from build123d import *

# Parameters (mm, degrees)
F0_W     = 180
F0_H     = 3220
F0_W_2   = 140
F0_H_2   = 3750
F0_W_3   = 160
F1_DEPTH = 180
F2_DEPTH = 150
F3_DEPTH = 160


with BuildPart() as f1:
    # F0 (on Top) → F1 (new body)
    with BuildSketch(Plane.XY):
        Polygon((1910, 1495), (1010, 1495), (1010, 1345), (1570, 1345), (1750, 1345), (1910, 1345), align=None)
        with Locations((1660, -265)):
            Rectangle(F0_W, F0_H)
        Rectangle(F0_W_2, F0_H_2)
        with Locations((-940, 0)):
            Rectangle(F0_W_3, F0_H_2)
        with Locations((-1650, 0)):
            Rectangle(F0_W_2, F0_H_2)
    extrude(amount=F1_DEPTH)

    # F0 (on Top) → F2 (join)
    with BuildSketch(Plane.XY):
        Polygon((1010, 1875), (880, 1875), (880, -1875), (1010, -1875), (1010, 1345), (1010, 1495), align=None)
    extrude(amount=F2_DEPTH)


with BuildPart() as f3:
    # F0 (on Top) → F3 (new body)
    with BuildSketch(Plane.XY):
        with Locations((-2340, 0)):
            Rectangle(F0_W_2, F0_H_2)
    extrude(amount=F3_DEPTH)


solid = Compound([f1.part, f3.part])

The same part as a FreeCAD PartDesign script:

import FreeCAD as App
import Part
import Sketcher
from FreeCAD import Vector

doc = App.newDocument("Part")
body = doc.addObject("PartDesign::Body", "Body")
body.AllowCompound = True

sketch1 = body.newObject("Sketcher::SketchObject", "Sketch")
sketch1.AttachmentSupport = (doc.getObject("XY_Plane"), [""])
sketch1.MapMode = "FlatFace"
sketch1.addGeometry(Part.LineSegment(Vector(1910, 1495, 0), Vector(1010, 1495, 0)), False)
sketch1.addGeometry(Part.LineSegment(Vector(1010, 1495, 0), Vector(1010, 1345, 0)), False)
sketch1.addGeometry(Part.LineSegment(Vector(1010, 1345, 0), Vector(1570, 1345, 0)), False)
sketch1.addGeometry(Part.LineSegment(Vector(1570, 1345, 0), Vector(1570, -1875, 0)), False)
sketch1.addGeometry(Part.LineSegment(Vector(1570, -1875, 0), Vector(1750, -1875, 0)), False)
sketch1.addGeometry(Part.LineSegment(Vector(1750, -1875, 0), Vector(1750, 1345, 0)), False)
sketch1.addGeometry(Part.LineSegment(Vector(1750, 1345, 0), Vector(1910, 1345, 0)), False)
sketch1.addGeometry(Part.LineSegment(Vector(1910, 1345, 0), Vector(1910, 1495, 0)), False)
sketch1.addGeometry(Part.LineSegment(Vector(-70, 1875, 0), Vector(-70, -1875, 0)), False)
sketch1.addGeometry(Part.LineSegment(Vector(-70, -1875, 0), Vector(70, -1875, 0)), False)
sketch1.addGeometry(Part.LineSegment(Vector(70, -1875, 0), Vector(70, 1875, 0)), False)
sketch1.addGeometry(Part.LineSegment(Vector(70, 1875, 0), Vector(-70, 1875, 0)), False)
sketch1.addGeometry(Part.LineSegment(Vector(-1020, 1875, 0), Vector(-1020, -1875, 0)), False)
sketch1.addGeometry(Part.LineSegment(Vector(-1020, -1875, 0), Vector(-860, -1875, 0)), False)
sketch1.addGeometry(Part.LineSegment(Vector(-860, -1875, 0), Vector(-860, 1875, 0)), False)
sketch1.addGeometry(Part.LineSegment(Vector(-860, 1875, 0), Vector(-1020, 1875, 0)), False)
sketch1.addGeometry(Part.LineSegment(Vector(-1720, 1875, 0), Vector(-1720, -1875, 0)), False)
sketch1.addGeometry(Part.LineSegment(Vector(-1720, -1875, 0), Vector(-1580, -1875, 0)), False)
sketch1.addGeometry(Part.LineSegment(Vector(-1580, -1875, 0), Vector(-1580, 1875, 0)), False)
sketch1.addGeometry(Part.LineSegment(Vector(-1580, 1875, 0), Vector(-1720, 1875, 0)), False)
sketch1.addConstraint(Sketcher.Constraint("Coincident", 0, 2, 1, 1))
sketch1.addConstraint(Sketcher.Constraint("Coincident", 1, 2, 2, 1))
sketch1.addConstraint(Sketcher.Constraint("Coincident", 2, 2, 3, 1))
sketch1.addConstraint(Sketcher.Constraint("Coincident", 3, 2, 4, 1))
sketch1.addConstraint(Sketcher.Constraint("Coincident", 4, 2, 5, 1))
sketch1.addConstraint(Sketcher.Constraint("Coincident", 5, 2, 6, 1))
sketch1.addConstraint(Sketcher.Constraint("Coincident", 6, 2, 7, 1))
sketch1.addConstraint(Sketcher.Constraint("Coincident", 7, 2, 0, 1))
sketch1.addConstraint(Sketcher.Constraint("Coincident", 8, 2, 9, 1))
sketch1.addConstraint(Sketcher.Constraint("Coincident", 9, 2, 10, 1))
sketch1.addConstraint(Sketcher.Constraint("Coincident", 10, 2, 11, 1))
sketch1.addConstraint(Sketcher.Constraint("Coincident", 11, 2, 8, 1))
sketch1.addConstraint(Sketcher.Constraint("Coincident", 12, 2, 13, 1))
sketch1.addConstraint(Sketcher.Constraint("Coincident", 13, 2, 14, 1))
sketch1.addConstraint(Sketcher.Constraint("Coincident", 14, 2, 15, 1))
sketch1.addConstraint(Sketcher.Constraint("Coincident", 15, 2, 12, 1))
sketch1.addConstraint(Sketcher.Constraint("Coincident", 16, 2, 17, 1))
sketch1.addConstraint(Sketcher.Constraint("Coincident", 17, 2, 18, 1))
sketch1.addConstraint(Sketcher.Constraint("Coincident", 18, 2, 19, 1))
sketch1.addConstraint(Sketcher.Constraint("Coincident", 19, 2, 16, 1))
sketch1.addConstraint(Sketcher.Constraint("Horizontal", 0))
sketch1.addConstraint(Sketcher.Constraint("Vertical", 1))
sketch1.addConstraint(Sketcher.Constraint("Horizontal", 2))
sketch1.addConstraint(Sketcher.Constraint("Vertical", 3))
sketch1.addConstraint(Sketcher.Constraint("Horizontal", 4))
sketch1.addConstraint(Sketcher.Constraint("Vertical", 5))
sketch1.addConstraint(Sketcher.Constraint("Horizontal", 6))
sketch1.addConstraint(Sketcher.Constraint("Vertical", 7))
sketch1.addConstraint(Sketcher.Constraint("Vertical", 8))
sketch1.addConstraint(Sketcher.Constraint("Horizontal", 9))
sketch1.addConstraint(Sketcher.Constraint("Vertical", 10))
sketch1.addConstraint(Sketcher.Constraint("Horizontal", 11))
sketch1.addConstraint(Sketcher.Constraint("Vertical", 12))
sketch1.addConstraint(Sketcher.Constraint("Horizontal", 13))
sketch1.addConstraint(Sketcher.Constraint("Vertical", 14))
sketch1.addConstraint(Sketcher.Constraint("Horizontal", 15))
sketch1.addConstraint(Sketcher.Constraint("Vertical", 16))
sketch1.addConstraint(Sketcher.Constraint("Horizontal", 17))
sketch1.addConstraint(Sketcher.Constraint("Vertical", 18))
sketch1.addConstraint(Sketcher.Constraint("Horizontal", 19))
sketch1.addConstraint(Sketcher.Constraint("Symmetric", 8, 2, 10, 2, -1, 1))
sketch1.addConstraint(Sketcher.Constraint("Horizontal", 2, 2, 5, 2))
sketch1.addConstraint(Sketcher.Constraint("Horizontal", 4, 2, 8, 2))
sketch1.addConstraint(Sketcher.Constraint("Horizontal", 9, 2, 12, 2))
sketch1.addConstraint(Sketcher.Constraint("Horizontal", 11, 2, 14, 2))
sketch1.addConstraint(Sketcher.Constraint("Horizontal", 13, 2, 16, 2))
sketch1.addConstraint(Sketcher.Constraint("Horizontal", 15, 2, 18, 2))
sketch1.addConstraint(Sketcher.Constraint("Equal", 6, 13))
sketch1.addConstraint(Sketcher.Constraint("Equal", 11, 17))
sketch1.addConstraint(Sketcher.Constraint("DistanceX", 0, 2, 0, 1, 900.0))
sketch1.addConstraint(Sketcher.Constraint("DistanceX", 2, 1, 2, 2, 560.0))
sketch1.addConstraint(Sketcher.Constraint("DistanceX", 4, 1, 4, 2, 180.0))
sketch1.addConstraint(Sketcher.Constraint("DistanceX", 9, 1, 9, 2, 140.0))
sketch1.addConstraint(Sketcher.Constraint("DistanceY", 1, 2, 1, 1, 150.0))
sketch1.addConstraint(Sketcher.Constraint("DistanceY", 3, 2, 3, 1, 3220.0))
sketch1.addConstraint(Sketcher.Constraint("DistanceY", 8, 2, 8, 1, 3750.0))
sketch1.addConstraint(Sketcher.Constraint("DistanceX", -1, 1, 0, 2, 1010.0))
sketch1.addConstraint(Sketcher.Constraint("DistanceX", 12, 2, -1, 1, 1020.0))
sketch1.addConstraint(Sketcher.Constraint("DistanceX", 16, 2, -1, 1, 1720.0))
pad1 = body.newObject("PartDesign::Pad", "Pad")
pad1.Profile = sketch1
pad1.Length = 180

sketch2 = body.newObject("Sketcher::SketchObject", "Sketch001")
sketch2.AttachmentSupport = (doc.getObject("XY_Plane"), [""])
sketch2.MapMode = "FlatFace"
sketch2.addGeometry(Part.LineSegment(Vector(1010, 1875, 0), Vector(880, 1875, 0)), False)
sketch2.addGeometry(Part.LineSegment(Vector(880, 1875, 0), Vector(880, -1875, 0)), False)
sketch2.addGeometry(Part.LineSegment(Vector(880, -1875, 0), Vector(1010, -1875, 0)), False)
sketch2.addGeometry(Part.LineSegment(Vector(1010, -1875, 0), Vector(1010, 1875, 0)), False)
sketch2.addConstraint(Sketcher.Constraint("Coincident", 0, 2, 1, 1))
sketch2.addConstraint(Sketcher.Constraint("Coincident", 1, 2, 2, 1))
sketch2.addConstraint(Sketcher.Constraint("Coincident", 2, 2, 3, 1))
sketch2.addConstraint(Sketcher.Constraint("Coincident", 3, 2, 0, 1))
sketch2.addConstraint(Sketcher.Constraint("Horizontal", 0))
sketch2.addConstraint(Sketcher.Constraint("Vertical", 1))
sketch2.addConstraint(Sketcher.Constraint("Horizontal", 2))
sketch2.addConstraint(Sketcher.Constraint("Vertical", 3))
sketch2.addConstraint(Sketcher.Constraint("DistanceX", 0, 2, 0, 1, 130.0))
sketch2.addConstraint(Sketcher.Constraint("DistanceY", 1, 2, 1, 1, 3750.0))
sketch2.addConstraint(Sketcher.Constraint("DistanceX", -1, 1, 0, 2, 880.0))
sketch2.addConstraint(Sketcher.Constraint("DistanceY", -1, 1, 0, 2, 1875.0))
pad2 = body.newObject("PartDesign::Pad", "Pad001")
pad2.Profile = sketch2
pad2.Length = 150
body2 = doc.addObject("PartDesign::Body", "Body001")

sketch3 = body2.newObject("Sketcher::SketchObject", "Sketch002")
sketch3.AttachmentSupport = (doc.getObject("XY_Plane001"), [""])
sketch3.MapMode = "FlatFace"
sketch3.addGeometry(Part.LineSegment(Vector(-2410, 1875, 0), Vector(-2410, -1875, 0)), False)
sketch3.addGeometry(Part.LineSegment(Vector(-2410, -1875, 0), Vector(-2270, -1875, 0)), False)
sketch3.addGeometry(Part.LineSegment(Vector(-2270, -1875, 0), Vector(-2270, 1875, 0)), False)
sketch3.addGeometry(Part.LineSegment(Vector(-2270, 1875, 0), Vector(-2410, 1875, 0)), False)
sketch3.addConstraint(Sketcher.Constraint("Coincident", 0, 2, 1, 1))
sketch3.addConstraint(Sketcher.Constraint("Coincident", 1, 2, 2, 1))
sketch3.addConstraint(Sketcher.Constraint("Coincident", 2, 2, 3, 1))
sketch3.addConstraint(Sketcher.Constraint("Coincident", 3, 2, 0, 1))
sketch3.addConstraint(Sketcher.Constraint("Vertical", 0))
sketch3.addConstraint(Sketcher.Constraint("Horizontal", 1))
sketch3.addConstraint(Sketcher.Constraint("Vertical", 2))
sketch3.addConstraint(Sketcher.Constraint("Horizontal", 3))
sketch3.addConstraint(Sketcher.Constraint("DistanceX", 1, 1, 1, 2, 140.0))
sketch3.addConstraint(Sketcher.Constraint("DistanceY", 0, 2, 0, 1, 3750.0))
sketch3.addConstraint(Sketcher.Constraint("DistanceX", 0, 2, -1, 1, 2410.0))
sketch3.addConstraint(Sketcher.Constraint("DistanceY", 0, 2, -1, 1, 1875.0))
pad3 = body2.newObject("PartDesign::Pad", "Pad002")
pad3.Profile = sketch3
pad3.Length = 160

doc.recompute()
